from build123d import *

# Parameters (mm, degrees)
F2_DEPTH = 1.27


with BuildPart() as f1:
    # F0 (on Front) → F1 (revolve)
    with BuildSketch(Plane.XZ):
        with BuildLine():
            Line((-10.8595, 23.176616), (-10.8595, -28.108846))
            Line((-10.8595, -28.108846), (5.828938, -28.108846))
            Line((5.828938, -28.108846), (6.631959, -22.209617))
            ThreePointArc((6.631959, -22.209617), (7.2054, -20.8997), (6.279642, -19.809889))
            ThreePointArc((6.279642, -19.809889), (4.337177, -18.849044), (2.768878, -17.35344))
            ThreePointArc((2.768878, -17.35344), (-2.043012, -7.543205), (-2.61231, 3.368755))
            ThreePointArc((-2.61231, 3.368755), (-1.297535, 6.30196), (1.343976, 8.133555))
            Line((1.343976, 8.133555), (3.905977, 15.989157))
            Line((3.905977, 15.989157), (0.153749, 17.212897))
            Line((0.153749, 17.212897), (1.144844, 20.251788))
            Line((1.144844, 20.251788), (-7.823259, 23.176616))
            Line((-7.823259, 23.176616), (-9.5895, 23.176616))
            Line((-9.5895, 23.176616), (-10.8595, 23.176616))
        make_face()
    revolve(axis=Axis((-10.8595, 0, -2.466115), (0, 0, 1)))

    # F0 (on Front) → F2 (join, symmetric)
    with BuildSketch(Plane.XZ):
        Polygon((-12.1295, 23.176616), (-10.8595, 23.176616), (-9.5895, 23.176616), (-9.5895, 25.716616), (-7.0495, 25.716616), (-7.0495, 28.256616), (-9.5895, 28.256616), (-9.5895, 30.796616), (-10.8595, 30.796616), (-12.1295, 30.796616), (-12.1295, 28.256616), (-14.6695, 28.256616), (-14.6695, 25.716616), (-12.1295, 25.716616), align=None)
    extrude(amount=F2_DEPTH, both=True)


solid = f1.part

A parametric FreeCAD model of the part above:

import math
import FreeCAD as App
import Part
import Sketcher

V = App.Vector
Q = App.Units.Quantity

doc = App.newDocument("Part")
body = doc.addObject("PartDesign::Body", "Body")

sketch1 = body.newObject("Sketcher::SketchObject", "Sketch")
sketch1.AttachmentSupport = (doc.getObject("XZ_Plane"), [""])
sketch1.MapMode = "FlatFace"
sketch1.addGeometry([
    Part.LineSegment(V(-10.8595, 23.176616, 0), V(-10.8595, -28.108846, 0)),
    Part.LineSegment(V(-10.8595, -28.108846, 0), V(5.828938, -28.108846, 0)),
    Part.LineSegment(V(5.828938, -28.108846, 0), V(6.631959, -22.209617, 0)),
    Part.ArcOfCircle(Part.Circle(V(5.870305, -21.095713, 0), V(0, 0, 1), 1.349407), math.radians(-55.636866), math.radians(72.341332)),
    Part.ArcOfCircle(Part.Circle(V(8.462447, -12.953196, 0), V(0, 0, 1), 7.195754), math.radians(-142.301553), math.radians(-107.658698)),
    Part.ArcOfCircle(Part.Circle(V(24.321118, -0.696907, 0), V(0, 0, 1), 27.23856), math.radians(171.415882), math.radians(217.698451)),
    Part.ArcOfCircle(Part.Circle(V(3.312188, 2.474437, 0), V(0, 0, 1), 5.991617), math.radians(109.177406), math.radians(171.415863)),
    Part.LineSegment(V(1.343976, 8.133555, 0), V(3.905977, 15.989157, 0)),
    Part.LineSegment(V(3.905977, 15.989157, 0), V(0.153749, 17.212897, 0)),
    Part.LineSegment(V(0.153749, 17.212897, 0), V(1.144844, 20.251788, 0)),
    Part.LineSegment(V(1.144844, 20.251788, 0), V(-7.823259, 23.176616, 0)),
    Part.LineSegment(V(-7.823259, 23.176616, 0), V(-10.8595, 23.176616, 0)),
], False)
sketch1.addGeometry(Part.LineSegment(V(-10.8595, -28.108846, 0), V(-10.8595, 23.176616, 0)), True)
sketch1.addConstraint([
    Sketcher.Constraint("Coincident", 0, 2, 1, 1),
    Sketcher.Constraint("Coincident", 1, 2, 2, 1),
    Sketcher.Constraint("Coincident", 2, 2, 3, 1),
    Sketcher.Constraint("Tangent", 3, 2, 4, 2),
    Sketcher.Constraint("Tangent", 4, 1, 5, 2),
    Sketcher.Constraint("Tangent", 5, 1, 6, 2),
    Sketcher.Constraint("Coincident", 6, 1, 7, 1),
    Sketcher.Constraint("Coincident", 7, 2, 8, 1),
    Sketcher.Constraint("Coincident", 8, 2, 9, 1),
    Sketcher.Constraint("Coincident", 9, 2, 10, 1),
    Sketcher.Constraint("Coincident", 10, 2, 11, 1),
    Sketcher.Constraint("Coincident", 11, 2, 0, 1),
    Sketcher.Constraint("Vertical", 0),
    Sketcher.Constraint("Horizontal", 1),
    Sketcher.Constraint("Horizontal", 11),
    Sketcher.Constraint("Vertical", 12),
    Sketcher.Constraint("Coincident", 12, 1, 0, 2),
    Sketcher.Constraint("Perpendicular", 7, 8),
    Sketcher.Constraint("Perpendicular", 8, 9),
    Sketcher.Constraint("Perpendicular", 9, 10),
    Sketcher.Constraint("Horizontal", 10, 2, 12, 2),
    Sketcher.Constraint("Radius", 5, Q("27.23856 mm")),
    Sketcher.Constraint("Radius", 3, Q("1.349407 mm")),
    Sketcher.Constraint("Radius", 4, Q("7.195754 mm")),
    Sketcher.Constraint("Radius", 6, Q("5.991617 mm")),
    Sketcher.Constraint("DistanceY", 6, 3, 6, 1, Q("0.2227999 in")),
    Sketcher.Constraint("DistanceX", 5, 1, 8, 2, Q("0.1089 in")),
    Sketcher.Constraint("Distance", 10, Q("9.433 mm")),
    Sketcher.Constraint("DistanceX", 1, 1, 1, 2, Q("16.688438 mm")),
    Sketcher.Constraint("DistanceX", 11, 2, 11, 1, Q("3.036241 mm")),
    Sketcher.Constraint("DistanceY", 0, 2, 0, 1, Q("51.285462 mm")),
    Sketcher.Constraint("DistanceX", 0, 2, -1, 1, Q("10.8595 mm")),
    Sketcher.Constraint("DistanceY", 5, 1, 6, 1, Q("4.7648 mm")),
    Sketcher.Constraint("DistanceX", 6, 1, 7, 2, Q("2.562001 mm")),
    Sketcher.Constraint("Distance", 7, Q("8.262828 mm")),
    Sketcher.Constraint("DistanceX", -1, 1, 2, 2, Q("6.631959 mm")),
    Sketcher.Constraint("DistanceX", -1, 1, 3, 2, Q("6.279642 mm")),
    Sketcher.Constraint("DistanceY", 3, 2, -1, 1, Q("19.809889 mm")),
    Sketcher.Constraint("DistanceX", -1, 1, 4, 1, Q("2.768878 mm")),
    Sketcher.Constraint("DistanceY", 4, 1, -1, 1, Q("17.35344 mm")),
])
revolution = body.newObject("PartDesign::Revolution", "Revolution")
revolution.Profile = sketch1
revolution.ReferenceAxis = (sketch1, ["Axis0"])
revolution.Angle = 360

sketch2 = body.newObject("Sketcher::SketchObject", "Sketch001")
sketch2.AttachmentSupport = (doc.getObject("XZ_Plane"), [""])
sketch2.MapMode = "FlatFace"
sketch2.addGeometry([
    Part.LineSegment(V(-12.1295, 23.176616, 0), V(-9.5895, 23.176616, 0)),
    Part.LineSegment(V(-9.5895, 23.176616, 0), V(-9.5895, 25.716616, 0)),
    Part.LineSegment(V(-9.5895, 25.716616, 0), V(-7.0495, 25.716616, 0)),
    Part.LineSegment(V(-7.0495, 25.716616, 0), V(-7.0495, 28.256616, 0)),
    Part.LineSegment(V(-7.0495, 28.256616, 0), V(-9.5895, 28.256616, 0)),
    Part.LineSegment(V(-9.5895, 28.256616, 0), V(-9.5895, 30.796616, 0)),
    Part.LineSegment(V(-9.5895, 30.796616, 0), V(-12.1295, 30.796616, 0)),
    Part.LineSegment(V(-12.1295, 30.796616, 0), V(-12.1295, 28.256616, 0)),
    Part.LineSegment(V(-12.1295, 28.256616, 0), V(-14.6695, 28.256616, 0)),
    Part.LineSegment(V(-14.6695, 28.256616, 0), V(-14.6695, 25.716616, 0)),
    Part.LineSegment(V(-14.6695, 25.716616, 0), V(-12.1295, 25.716616, 0)),
    Part.LineSegment(V(-12.1295, 25.716616, 0), V(-12.1295, 23.176616, 0)),
], False)
sketch2.addConstraint([
    Sketcher.Constraint("Coincident", 0, 2, 1, 1),
    Sketcher.Constraint("Coincident", 1, 2, 2, 1),
    Sketcher.Constraint("Coincident", 2, 2, 3, 1),
    Sketcher.Constraint("Coincident", 3, 2, 4, 1),
    Sketcher.Constraint("Coincident", 4, 2, 5, 1),
    Sketcher.Constraint("Coincident", 5, 2, 6, 1),
    Sketcher.Constraint("Coincident", 6, 2, 7, 1),
    Sketcher.Constraint("Coincident", 7, 2, 8, 1),
    Sketcher.Constraint("Coincident", 8, 2, 9, 1),
    Sketcher.Constraint("Coincident", 9, 2, 10, 1),
    Sketcher.Constraint("Coincident", 10, 2, 11, 1),
    Sketcher.Constraint("Coincident", 11, 2, 0, 1),
    Sketcher.Constraint("Horizontal", 0),
    Sketcher.Constraint("Vertical", 1),
    Sketcher.Constraint("Horizontal", 2),
    Sketcher.Constraint("Vertical", 3),
    Sketcher.Constraint("Horizontal", 4),
    Sketcher.Constraint("Vertical", 5),
    Sketcher.Constraint("Horizontal", 6),
    Sketcher.Constraint("Vertical", 7),
    Sketcher.Constraint("Horizontal", 8),
    Sketcher.Constraint("Vertical", 9),
    Sketcher.Constraint("Horizontal", 10),
    Sketcher.Constraint("Vertical", 11),
    Sketcher.Constraint("Horizontal", 4, 2, 7, 2),
    Sketcher.Constraint("Horizontal", 2, 2, 9, 2),
    Sketcher.Constraint("Vertical", 1, 2, 4, 2),
    Sketcher.Constraint("Vertical", 7, 2, 10, 2),
    Sketcher.Constraint("Equal", 0, 2),
    Sketcher.Constraint("Equal", 6, 8),
    Sketcher.Constraint("Equal", 10, 1),
    Sketcher.Constraint("Equal", 1, 3),
    Sketcher.Constraint("Equal", 3, 5),
    Sketcher.Constraint("DistanceX", 0, 1, 0, 2, Q("0.1 in")),
    Sketcher.Constraint("DistanceX", 0, 2, -1, 1, Q("9.5895 mm")),
    Sketcher.Constraint("DistanceY", -1, 1, 0, 2, Q("23.176616 mm")),
])
pad1 = body.newObject("PartDesign::Pad", "Pad")
pad1.Profile = sketch2
pad1.Length = Q("0.1 in")
pad1.Midplane = True

doc.recompute()
